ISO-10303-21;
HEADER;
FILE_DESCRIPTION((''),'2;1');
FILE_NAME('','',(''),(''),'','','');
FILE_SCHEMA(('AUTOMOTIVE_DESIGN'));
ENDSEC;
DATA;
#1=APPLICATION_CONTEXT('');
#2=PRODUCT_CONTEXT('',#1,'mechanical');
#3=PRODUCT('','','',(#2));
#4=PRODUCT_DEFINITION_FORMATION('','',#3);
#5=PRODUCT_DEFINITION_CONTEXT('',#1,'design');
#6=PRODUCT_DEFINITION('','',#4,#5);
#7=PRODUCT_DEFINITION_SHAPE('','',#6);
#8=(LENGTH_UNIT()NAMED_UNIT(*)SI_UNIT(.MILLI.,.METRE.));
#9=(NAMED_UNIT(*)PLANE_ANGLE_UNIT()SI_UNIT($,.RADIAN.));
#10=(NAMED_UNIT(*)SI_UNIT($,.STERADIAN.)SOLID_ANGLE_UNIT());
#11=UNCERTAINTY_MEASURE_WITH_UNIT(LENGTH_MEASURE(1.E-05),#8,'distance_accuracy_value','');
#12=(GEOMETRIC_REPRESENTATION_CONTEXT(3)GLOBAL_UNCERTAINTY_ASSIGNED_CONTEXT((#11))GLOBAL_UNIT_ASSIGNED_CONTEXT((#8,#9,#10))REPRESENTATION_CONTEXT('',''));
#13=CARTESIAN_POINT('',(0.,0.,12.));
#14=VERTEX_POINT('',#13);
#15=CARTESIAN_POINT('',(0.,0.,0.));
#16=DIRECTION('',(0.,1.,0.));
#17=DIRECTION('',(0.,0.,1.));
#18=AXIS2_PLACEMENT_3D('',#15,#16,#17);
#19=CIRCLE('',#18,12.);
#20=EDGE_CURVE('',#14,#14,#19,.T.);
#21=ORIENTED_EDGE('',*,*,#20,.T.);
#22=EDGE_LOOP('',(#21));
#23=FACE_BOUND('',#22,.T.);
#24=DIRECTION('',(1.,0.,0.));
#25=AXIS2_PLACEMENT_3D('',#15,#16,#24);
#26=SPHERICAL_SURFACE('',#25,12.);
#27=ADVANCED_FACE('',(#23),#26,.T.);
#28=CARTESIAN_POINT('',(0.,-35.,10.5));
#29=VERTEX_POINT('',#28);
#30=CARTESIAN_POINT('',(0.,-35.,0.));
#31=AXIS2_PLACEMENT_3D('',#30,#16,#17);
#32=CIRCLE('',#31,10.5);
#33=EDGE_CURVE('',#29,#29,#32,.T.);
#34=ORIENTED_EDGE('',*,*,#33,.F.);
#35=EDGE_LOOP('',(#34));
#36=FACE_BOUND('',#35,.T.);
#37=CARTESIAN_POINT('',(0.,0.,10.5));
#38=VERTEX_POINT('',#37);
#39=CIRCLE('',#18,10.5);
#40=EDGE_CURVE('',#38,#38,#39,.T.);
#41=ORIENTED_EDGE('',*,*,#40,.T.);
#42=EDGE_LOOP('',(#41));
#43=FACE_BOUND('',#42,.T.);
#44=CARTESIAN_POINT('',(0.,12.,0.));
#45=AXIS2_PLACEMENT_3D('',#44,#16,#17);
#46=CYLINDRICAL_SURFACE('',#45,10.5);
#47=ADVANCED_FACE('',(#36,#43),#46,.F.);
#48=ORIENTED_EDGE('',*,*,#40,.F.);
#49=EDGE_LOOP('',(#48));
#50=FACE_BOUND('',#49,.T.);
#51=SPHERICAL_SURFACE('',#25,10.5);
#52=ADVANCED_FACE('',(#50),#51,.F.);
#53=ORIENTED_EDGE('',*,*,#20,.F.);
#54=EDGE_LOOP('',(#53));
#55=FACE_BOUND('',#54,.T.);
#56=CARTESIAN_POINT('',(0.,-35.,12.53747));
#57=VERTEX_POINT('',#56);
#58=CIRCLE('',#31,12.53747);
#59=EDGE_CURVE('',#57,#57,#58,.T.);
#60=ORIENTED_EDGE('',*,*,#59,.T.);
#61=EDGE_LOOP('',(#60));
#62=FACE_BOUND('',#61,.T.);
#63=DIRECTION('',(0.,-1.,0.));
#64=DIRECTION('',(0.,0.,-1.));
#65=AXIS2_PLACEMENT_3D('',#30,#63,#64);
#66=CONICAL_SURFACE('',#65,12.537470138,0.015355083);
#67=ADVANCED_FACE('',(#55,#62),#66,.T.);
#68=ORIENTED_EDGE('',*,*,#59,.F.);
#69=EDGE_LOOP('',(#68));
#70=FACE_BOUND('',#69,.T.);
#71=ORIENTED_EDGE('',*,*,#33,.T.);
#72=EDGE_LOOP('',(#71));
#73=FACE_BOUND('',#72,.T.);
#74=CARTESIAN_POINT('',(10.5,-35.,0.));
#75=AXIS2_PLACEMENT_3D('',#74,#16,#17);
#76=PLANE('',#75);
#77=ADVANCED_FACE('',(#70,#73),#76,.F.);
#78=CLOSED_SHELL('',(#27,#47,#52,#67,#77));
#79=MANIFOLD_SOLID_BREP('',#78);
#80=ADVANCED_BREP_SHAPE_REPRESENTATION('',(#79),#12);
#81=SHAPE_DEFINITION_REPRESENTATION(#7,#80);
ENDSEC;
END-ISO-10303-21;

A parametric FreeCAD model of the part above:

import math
import FreeCAD as App
import Part
import Sketcher

V = App.Vector
Q = App.Units.Quantity

doc = App.newDocument("Part")
params = doc.addObject("Spreadsheet::Sheet", "Params")
for row, (alias, value) in enumerate([
    ("sketch1_radius", "12 mm"),
    ("sketch1_radius2", "10.5 mm"),
    ("sketch1_height", "35 mm"),
    ("revolution_angle", "360 deg"),
], start=1):
    params.set(f"A{row}", alias)
    params.set(f"B{row}", "=" + value)
    params.setAlias(f"B{row}", alias)

body = doc.addObject("PartDesign::Body", "Body")

# Sketch on XY plane
sketch1 = body.newObject("Sketcher::SketchObject", "Sketch")
sketch1.AttachmentSupport = (doc.getObject("XY_Plane"), [""])
sketch1.MapMode = "FlatFace"
sketch1.addGeometry([
    Part.LineSegment(V(12.53747, -35, 0), V(12, 0, 0)),  # 0
    Part.ArcOfCircle(Part.Circle(V(0, 0, 0), V(0, 0, 1), 12), math.radians(0), math.radians(90)),  # 1
    Part.LineSegment(V(0, 12, 0), V(0, 10.5, 0)),  # 2
    Part.ArcOfCircle(Part.Circle(V(0, 0, 0), V(0, 0, 1), 10.5), math.radians(0), math.radians(90)),  # 3
    Part.LineSegment(V(10.5, 0, 0), V(10.5, -35, 0)),  # 4
    Part.LineSegment(V(10.5, -35, 0), V(12.53747, -35, 0)),  # 5
], False)
sketch1.addConstraint([
    Sketcher.Constraint("Coincident", 0, 2, 1, 1),
    Sketcher.Constraint("Coincident", 1, 2, 2, 1),
    Sketcher.Constraint("Coincident", 2, 2, 3, 2),
    Sketcher.Constraint("Tangent", 3, 1, 4, 1),
    Sketcher.Constraint("Coincident", 4, 2, 5, 1),
    Sketcher.Constraint("Coincident", 5, 2, 0, 1),
    Sketcher.Constraint("Vertical", 2),
    Sketcher.Constraint("Vertical", 4),
    Sketcher.Constraint("Horizontal", 5),
    Sketcher.Constraint("Coincident", 1, 3, -1, 1),
    Sketcher.Constraint("Coincident", 3, 3, -1, 1),
    Sketcher.Constraint("PointOnObject", 0, 2, -1),
    Sketcher.Constraint("PointOnObject", 1, 2, -2),
    Sketcher.Constraint("Radius", 1, Q("12 mm")),
    Sketcher.Constraint("Radius", 3, Q("10.5 mm")),
    Sketcher.Constraint("DistanceY", 4, 2, 4, 1, Q("35 mm")),
    Sketcher.Constraint("DistanceX", 5, 1, 5, 2, Q("2.03747 mm")),
])
sketch1.setExpression("Constraints[13]", "Params.sketch1_radius")
sketch1.setExpression("Constraints[14]", "Params.sketch1_radius2")
sketch1.setExpression("Constraints[15]", "Params.sketch1_height")
revolution = body.newObject("PartDesign::Revolution", "Revolution")
revolution.Profile = sketch1
revolution.ReferenceAxis = (sketch1, ["V_Axis"])
revolution.setExpression("Angle", "Params.revolution_angle")

doc.recompute()
